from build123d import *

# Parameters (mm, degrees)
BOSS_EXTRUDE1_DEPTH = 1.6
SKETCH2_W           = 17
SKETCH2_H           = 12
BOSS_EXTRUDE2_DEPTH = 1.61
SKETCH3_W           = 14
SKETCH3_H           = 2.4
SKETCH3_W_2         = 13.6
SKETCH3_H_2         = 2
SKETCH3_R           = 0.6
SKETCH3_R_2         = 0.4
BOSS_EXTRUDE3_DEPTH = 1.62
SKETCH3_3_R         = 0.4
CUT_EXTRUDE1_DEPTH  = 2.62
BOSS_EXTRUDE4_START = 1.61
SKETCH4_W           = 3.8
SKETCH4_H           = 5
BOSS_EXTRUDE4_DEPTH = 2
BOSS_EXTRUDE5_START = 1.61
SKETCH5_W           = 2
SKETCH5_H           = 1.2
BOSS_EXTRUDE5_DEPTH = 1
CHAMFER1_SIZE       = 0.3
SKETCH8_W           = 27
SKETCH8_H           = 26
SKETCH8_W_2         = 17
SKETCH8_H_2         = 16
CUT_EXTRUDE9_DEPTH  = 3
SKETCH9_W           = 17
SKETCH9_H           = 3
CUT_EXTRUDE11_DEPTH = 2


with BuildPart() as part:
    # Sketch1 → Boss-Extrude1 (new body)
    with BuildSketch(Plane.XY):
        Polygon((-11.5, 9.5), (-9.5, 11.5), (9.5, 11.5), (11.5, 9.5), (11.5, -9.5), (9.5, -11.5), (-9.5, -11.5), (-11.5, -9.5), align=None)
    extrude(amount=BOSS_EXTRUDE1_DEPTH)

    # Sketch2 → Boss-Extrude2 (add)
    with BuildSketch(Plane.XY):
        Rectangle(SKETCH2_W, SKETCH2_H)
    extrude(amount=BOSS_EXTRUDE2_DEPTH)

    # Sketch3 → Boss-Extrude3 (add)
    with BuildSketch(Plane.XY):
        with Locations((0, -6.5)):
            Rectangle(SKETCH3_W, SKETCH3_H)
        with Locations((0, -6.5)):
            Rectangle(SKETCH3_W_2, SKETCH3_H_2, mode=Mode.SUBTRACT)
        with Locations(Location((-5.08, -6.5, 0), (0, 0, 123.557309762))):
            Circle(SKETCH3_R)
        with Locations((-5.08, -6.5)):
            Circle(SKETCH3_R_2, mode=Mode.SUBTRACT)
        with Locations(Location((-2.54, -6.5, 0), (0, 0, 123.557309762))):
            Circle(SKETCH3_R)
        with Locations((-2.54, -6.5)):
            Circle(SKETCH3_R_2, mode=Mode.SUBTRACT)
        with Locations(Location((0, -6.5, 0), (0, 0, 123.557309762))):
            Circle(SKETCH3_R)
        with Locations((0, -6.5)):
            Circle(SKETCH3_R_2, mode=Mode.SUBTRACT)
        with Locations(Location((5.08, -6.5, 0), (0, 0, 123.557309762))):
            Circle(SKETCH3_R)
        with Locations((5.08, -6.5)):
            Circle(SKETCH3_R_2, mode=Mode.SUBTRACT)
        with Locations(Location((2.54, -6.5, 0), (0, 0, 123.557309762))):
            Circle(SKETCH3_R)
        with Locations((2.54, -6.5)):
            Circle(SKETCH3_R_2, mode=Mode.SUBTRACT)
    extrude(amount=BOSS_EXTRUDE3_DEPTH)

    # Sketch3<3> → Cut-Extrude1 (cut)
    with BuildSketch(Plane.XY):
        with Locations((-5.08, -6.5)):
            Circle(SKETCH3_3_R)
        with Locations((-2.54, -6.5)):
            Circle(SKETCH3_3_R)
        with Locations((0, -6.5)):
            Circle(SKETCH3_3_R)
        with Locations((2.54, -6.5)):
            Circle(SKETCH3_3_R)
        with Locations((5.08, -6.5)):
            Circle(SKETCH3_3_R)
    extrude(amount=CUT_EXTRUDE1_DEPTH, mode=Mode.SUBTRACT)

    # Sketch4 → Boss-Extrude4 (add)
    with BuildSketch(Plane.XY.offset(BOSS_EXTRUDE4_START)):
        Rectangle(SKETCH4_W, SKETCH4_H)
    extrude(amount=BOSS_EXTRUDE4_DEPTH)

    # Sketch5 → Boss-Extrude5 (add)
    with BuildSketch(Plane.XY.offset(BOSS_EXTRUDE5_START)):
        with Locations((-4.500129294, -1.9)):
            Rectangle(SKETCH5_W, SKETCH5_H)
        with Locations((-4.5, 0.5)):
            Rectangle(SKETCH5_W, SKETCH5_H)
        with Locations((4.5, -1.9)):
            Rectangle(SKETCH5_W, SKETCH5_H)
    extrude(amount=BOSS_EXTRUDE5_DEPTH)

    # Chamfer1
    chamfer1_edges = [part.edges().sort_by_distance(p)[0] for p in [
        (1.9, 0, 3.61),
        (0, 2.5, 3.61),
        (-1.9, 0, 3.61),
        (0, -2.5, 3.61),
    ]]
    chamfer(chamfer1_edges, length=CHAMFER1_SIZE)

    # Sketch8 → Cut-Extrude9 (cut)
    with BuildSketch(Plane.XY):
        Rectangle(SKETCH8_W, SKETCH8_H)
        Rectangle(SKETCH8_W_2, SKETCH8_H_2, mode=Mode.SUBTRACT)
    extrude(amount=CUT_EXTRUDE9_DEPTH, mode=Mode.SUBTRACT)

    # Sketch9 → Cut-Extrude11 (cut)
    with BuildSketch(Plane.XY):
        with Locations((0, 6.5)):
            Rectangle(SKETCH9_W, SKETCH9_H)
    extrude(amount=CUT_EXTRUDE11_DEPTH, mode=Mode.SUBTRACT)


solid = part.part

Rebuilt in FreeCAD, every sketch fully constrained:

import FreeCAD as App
import Part
import Sketcher

V = App.Vector
Q = App.Units.Quantity


def edges_at(feature, points):
    """Names of the edges that pass closest to the given points."""
    edges = feature.Shape.Edges
    near = lambda p: min(range(len(edges)), key=lambda i: edges[i].distToShape(Part.Vertex(*p))[0])
    return sorted({f"Edge{near(p) + 1}" for p in points})


def add_polygon(sketch, points):
    """Adds a closed chain of lines whose ends are joined by coincident constraints."""
    first, n = sketch.GeometryCount, len(points)
    for a, b in zip(points, points[1:] + points[:1]):
        sketch.addGeometry(Part.LineSegment(App.Vector(*a, 0), App.Vector(*b, 0)), False)
    for i in range(n):
        sketch.addConstraint(Sketcher.Constraint("Coincident", first + i, 2, first + (i + 1) % n, 1))

doc = App.newDocument("Part")
params = doc.addObject("Spreadsheet::Sheet", "Params")
for row, (alias, value) in enumerate([
    ("sketch1_width", "19 mm"),
    ("pad1_length", "1.6 mm"),
    ("sketch2_width", "17 mm"),
    ("sketch2_height", "12 mm"),
    ("pad2_length", "1.61 mm"),
    ("sketch3_diameter", "1.2 mm"),
    ("sketch3_diameter2", "0.8 mm"),
    ("sketch3_width", "14 mm"),
    ("sketch3_height", "2 mm"),
    ("sketch3_width2", "13.6 mm"),
    ("pad3_length", "1.62 mm"),
    ("sketch4_diameter", "0.8 mm"),
    ("pocket1_length", "2.62 mm"),
    ("sketch5_height", "5 mm"),
    ("sketch5_width", "3.8 mm"),
    ("pad4_length", "2 mm"),
    ("sketch6_width", "2 mm"),
    ("sketch6_height", "1.2 mm"),
    ("pad5_length", "1 mm"),
    ("chamfer_size", "0.3 mm"),
    ("sketch7_width", "27 mm"),
    ("sketch7_width2", "17 mm"),
    ("sketch7_height", "26 mm"),
    ("sketch7_height2", "16 mm"),
    ("pocket2_length", "3 mm"),
    ("sketch8_width", "17 mm"),
    ("sketch8_height", "3 mm"),
    ("pocket3_length", "2 mm"),
], start=1):
    params.set(f"A{row}", alias)
    params.set(f"B{row}", "=" + value)
    params.setAlias(f"B{row}", alias)

body = doc.addObject("PartDesign::Body", "Body")

sketch1 = body.newObject("Sketcher::SketchObject", "Sketch")
sketch1.AttachmentSupport = (doc.getObject("XY_Plane"), [""])
sketch1.MapMode = "FlatFace"
add_polygon(sketch1, [(-9.5, 11.5), (-11.5, 9.5), (-11.5, -9.5), (-9.5, -11.5), (9.5, -11.5), (11.5, -9.5), (11.5, 9.5), (9.5, 11.5)])
sketch1.addConstraint(Sketcher.Constraint("Vertical", 1))
sketch1.addConstraint(Sketcher.Constraint("Horizontal", 3))
sketch1.addConstraint(Sketcher.Constraint("Vertical", 5))
sketch1.addConstraint(Sketcher.Constraint("Horizontal", 7))
sketch1.addConstraint(Sketcher.Constraint("Symmetric", 0, 2, 4, 2, -1, 1))
sketch1.addConstraint(Sketcher.Constraint("Symmetric", 2, 2, 6, 2, -1, 1))
sketch1.addConstraint(Sketcher.Constraint("Perpendicular", 0, 2))
sketch1.addConstraint(Sketcher.Constraint("Perpendicular", 2, 4))
sketch1.addConstraint(Sketcher.Constraint("Perpendicular", 4, 6))
sketch1.addConstraint(Sketcher.Constraint("Horizontal", 1, 2, 4, 2))
sketch1.addConstraint(Sketcher.Constraint("Vertical", 3, 2, 6, 2))
sketch1.addConstraint(Sketcher.Constraint("Equal", 7, 1))
sketch1.addConstraint(Sketcher.Constraint("DistanceX", 3, 1, 3, 2, Q("19 mm")))
sketch1.addConstraint(Sketcher.Constraint("DistanceX", 1, 2, 2, 2, Q("2 mm")))
sketch1.setExpression("Constraints[20]", "Params.sketch1_width")
pad1 = body.newObject("PartDesign::Pad", "Pad")
pad1.Profile = sketch1
pad1.setExpression("Length", "Params.pad1_length")

sketch2 = body.newObject("Sketcher::SketchObject", "Sketch001")
sketch2.AttachmentSupport = (doc.getObject("XY_Plane"), [""])
sketch2.MapMode = "FlatFace"
add_polygon(sketch2, [(-8, 6), (-8, -6), (8, -6), (8, 6)])
sketch2.addConstraint(Sketcher.Constraint("Vertical", 0))
sketch2.addConstraint(Sketcher.Constraint("Horizontal", 1))
sketch2.addConstraint(Sketcher.Constraint("Vertical", 2))
sketch2.addConstraint(Sketcher.Constraint("Horizontal", 3))
sketch2.addConstraint(Sketcher.Constraint("Symmetric", 0, 2, 2, 2, -1, 1))
sketch2.addConstraint(Sketcher.Constraint("DistanceX", 1, 1, 1, 2, Q("17 mm")))
sketch2.addConstraint(Sketcher.Constraint("DistanceY", 0, 2, 0, 1, Q("12 mm")))
sketch2.setExpression("Constraints[9]", "Params.sketch2_width")
sketch2.setExpression("Constraints[10]", "Params.sketch2_height")
pad2 = body.newObject("PartDesign::Pad", "Pad001")
pad2.Profile = sketch2
pad2.setExpression("Length", "Params.pad2_length")

sketch3 = body.newObject("Sketcher::SketchObject", "Sketch002")
sketch3.AttachmentSupport = (doc.getObject("XY_Plane"), [""])
sketch3.MapMode = "FlatFace"
add_polygon(sketch3, [(-7, -5.3), (-7, -7.7), (7, -7.7), (7, -5.3)])
add_polygon(sketch3, [(6.8, -7.5), (-6.8, -7.5), (-6.8, -5.5), (6.8, -5.5)])
sketch3.addGeometry(Part.Circle(V(-5.08, -6.5, 0), V(0, 0, 1), 0.6), False)
sketch3.addGeometry(Part.Circle(V(-5.08, -6.5, 0), V(0, 0, 1), 0.4), False)
sketch3.addGeometry(Part.Circle(V(-2.54, -6.5, 0), V(0, 0, 1), 0.6), False)
sketch3.addGeometry(Part.Circle(V(-2.54, -6.5, 0), V(0, 0, 1), 0.4), False)
sketch3.addGeometry(Part.Circle(V(0, -6.5, 0), V(0, 0, 1), 0.6), False)
sketch3.addGeometry(Part.Circle(V(0, -6.5, 0), V(0, 0, 1), 0.4), False)
sketch3.addGeometry(Part.Circle(V(5.08, -6.5, 0), V(0, 0, 1), 0.6), False)
sketch3.addGeometry(Part.Circle(V(5.08, -6.5, 0), V(0, 0, 1), 0.4), False)
sketch3.addGeometry(Part.Circle(V(2.54, -6.5, 0), V(0, 0, 1), 0.6), False)
sketch3.addGeometry(Part.Circle(V(2.54, -6.5, 0), V(0, 0, 1), 0.4), False)
sketch3.addConstraint(Sketcher.Constraint("Vertical", 0))
sketch3.addConstraint(Sketcher.Constraint("Horizontal", 1))
sketch3.addConstraint(Sketcher.Constraint("Vertical", 2))
sketch3.addConstraint(Sketcher.Constraint("Horizontal", 3))
sketch3.addConstraint(Sketcher.Constraint("Horizontal", 4))
sketch3.addConstraint(Sketcher.Constraint("Vertical", 5))
sketch3.addConstraint(Sketcher.Constraint("Horizontal", 6))
sketch3.addConstraint(Sketcher.Constraint("Vertical", 7))
sketch3.addConstraint(Sketcher.Constraint("Coincident", 9, 3, 8, 3))
sketch3.addConstraint(Sketcher.Constraint("Coincident", 11, 3, 10, 3))
sketch3.addConstraint(Sketcher.Constraint("Coincident", 13, 3, 12, 3))
sketch3.addConstraint(Sketcher.Constraint("Coincident", 15, 3, 14, 3))
sketch3.addConstraint(Sketcher.Constraint("Coincident", 17, 3, 16, 3))
sketch3.addConstraint(Sketcher.Constraint("Equal", 8, 10))
sketch3.addConstraint(Sketcher.Constraint("Equal", 9, 11))
sketch3.addConstraint(Sketcher.Constraint("Equal", 10, 12))
sketch3.addConstraint(Sketcher.Constraint("Equal", 11, 13))
sketch3.addConstraint(Sketcher.Constraint("Equal", 12, 14))
sketch3.addConstraint(Sketcher.Constraint("Equal", 13, 15))
sketch3.addConstraint(Sketcher.Constraint("Equal", 14, 16))
sketch3.addConstraint(Sketcher.Constraint("Equal", 15, 17))
sketch3.addConstraint(Sketcher.Constraint("Symmetric", 8, 3, 14, 3, -2))
sketch3.addConstraint(Sketcher.Constraint("Symmetric", 10, 3, 16, 3, -2))
sketch3.addConstraint(Sketcher.Constraint("PointOnObject", 12, 3, -2))
sketch3.addConstraint(Sketcher.Constraint("Horizontal", 9, 3, 10, 3))
sketch3.addConstraint(Sketcher.Constraint("Horizontal", 11, 3, 12, 3))
sketch3.addConstraint(Sketcher.Constraint("Diameter", 8, Q("1.2 mm")))
sketch3.addConstraint(Sketcher.Constraint("Diameter", 9, Q("0.8 mm")))
sketch3.addConstraint(Sketcher.Constraint("DistanceX", 1, 1, 1, 2, Q("14 mm")))
sketch3.addConstraint(Sketcher.Constraint("DistanceY", 5, 1, 5, 2, Q("2 mm")))
sketch3.addConstraint(Sketcher.Constraint("DistanceX", 4, 2, 4, 1, Q("13.6 mm")))
sketch3.addConstraint(Sketcher.Constraint("DistanceY", 0, 2, 0, 1, Q("2.4 mm")))
sketch3.addConstraint(Sketcher.Constraint("DistanceX", 0, 2, -1, 1, Q("7 mm")))
sketch3.addConstraint(Sketcher.Constraint("DistanceY", 4, 2, 8, 3, Q("1 mm")))
sketch3.addConstraint(Sketcher.Constraint("DistanceY", 8, 3, -1, 1, Q("6.5 mm")))
sketch3.addConstraint(Sketcher.Constraint("DistanceY", 0, 2, -1, 1, Q("7.7 mm")))
sketch3.addConstraint(Sketcher.Constraint("DistanceX", 4, 2, -1, 1, Q("6.8 mm")))
sketch3.addConstraint(Sketcher.Constraint("DistanceX", 8, 3, -1, 1, Q("5.08 mm")))
sketch3.addConstraint(Sketcher.Constraint("DistanceX", 10, 3, -1, 1, Q("2.54 mm")))
sketch3.setExpression("Constraints[34]", "Params.sketch3_diameter")
sketch3.setExpression("Constraints[35]", "Params.sketch3_diameter2")
sketch3.setExpression("Constraints[36]", "Params.sketch3_width")
sketch3.setExpression("Constraints[37]", "Params.sketch3_height")
sketch3.setExpression("Constraints[38]", "Params.sketch3_width2")
pad3 = body.newObject("PartDesign::Pad", "Pad002")
pad3.Profile = sketch3
pad3.setExpression("Length", "Params.pad3_length")

sketch4 = body.newObject("Sketcher::SketchObject", "Sketch003")
sketch4.AttachmentSupport = (doc.getObject("XY_Plane"), [""])
sketch4.MapMode = "FlatFace"
sketch4.addGeometry(Part.Circle(V(-5.08, -6.5, 0), V(0, 0, 1), 0.4), False)
sketch4.addGeometry(Part.Circle(V(-2.54, -6.5, 0), V(0, 0, 1), 0.4), False)
sketch4.addGeometry(Part.Circle(V(0, -6.5, 0), V(0, 0, 1), 0.4), False)
sketch4.addGeometry(Part.Circle(V(2.54, -6.5, 0), V(0, 0, 1), 0.4), False)
sketch4.addGeometry(Part.Circle(V(5.08, -6.5, 0), V(0, 0, 1), 0.4), False)
sketch4.addConstraint(Sketcher.Constraint("Equal", 0, 1))
sketch4.addConstraint(Sketcher.Constraint("Equal", 1, 2))
sketch4.addConstraint(Sketcher.Constraint("Equal", 2, 3))
sketch4.addConstraint(Sketcher.Constraint("Equal", 3, 4))
sketch4.addConstraint(Sketcher.Constraint("Symmetric", 1, 3, 3, 3, -2))
sketch4.addConstraint(Sketcher.Constraint("Symmetric", 0, 3, 4, 3, -2))
sketch4.addConstraint(Sketcher.Constraint("PointOnObject", 2, 3, -2))
sketch4.addConstraint(Sketcher.Constraint("Horizontal", 0, 3, 1, 3))
sketch4.addConstraint(Sketcher.Constraint("Horizontal", 1, 3, 2, 3))
sketch4.addConstraint(Sketcher.Constraint("Diameter", 0, Q("0.8 mm")))
sketch4.addConstraint(Sketcher.Constraint("DistanceY", 0, 3, -1, 1, Q("6.5 mm")))
sketch4.addConstraint(Sketcher.Constraint("DistanceX", 0, 3, -1, 1, Q("5.08 mm")))
sketch4.addConstraint(Sketcher.Constraint("DistanceX", 1, 3, -1, 1, Q("2.54 mm")))
sketch4.setExpression("Constraints[9]", "Params.sketch4_diameter")
pocket1 = body.newObject("PartDesign::Pocket", "Pocket")
pocket1.Profile = sketch4
pocket1.setExpression("Length", "Params.pocket1_length")
pocket1.Reversed = True

sketch5 = body.newObject("Sketcher::SketchObject", "Sketch004")
sketch5.AttachmentSupport = (doc.getObject("XY_Plane"), [""])
sketch5.MapMode = "FlatFace"
sketch5.AttachmentOffset = App.Placement(V(0, 0, 1.61), App.Rotation())
add_polygon(sketch5, [(-1.9, 2.5), (-1.9, -2.5), (1.9, -2.5), (1.9, 2.5)])
sketch5.addConstraint(Sketcher.Constraint("Vertical", 0))
sketch5.addConstraint(Sketcher.Constraint("Horizontal", 1))
sketch5.addConstraint(Sketcher.Constraint("Vertical", 2))
sketch5.addConstraint(Sketcher.Constraint("Horizontal", 3))
sketch5.addConstraint(Sketcher.Constraint("Symmetric", 0, 2, 2, 2, -1, 1))
sketch5.addConstraint(Sketcher.Constraint("DistanceY", 0, 2, 0, 1, Q("5 mm")))
sketch5.addConstraint(Sketcher.Constraint("DistanceX", 1, 1, 1, 2, Q("3.8 mm")))
sketch5.setExpression("Constraints[9]", "Params.sketch5_height")
sketch5.setExpression("Constraints[10]", "Params.sketch5_width")
pad4 = body.newObject("PartDesign::Pad", "Pad003")
pad4.Profile = sketch5
pad4.setExpression("Length", "Params.pad4_length")

sketch6 = body.newObject("Sketcher::SketchObject", "Sketch005")
sketch6.AttachmentSupport = (doc.getObject("XY_Plane"), [""])
sketch6.MapMode = "FlatFace"
sketch6.AttachmentOffset = App.Placement(V(0, 0, 1.61), App.Rotation())
add_polygon(sketch6, [(-5.5, -1.3), (-5.5, -2.5), (-3.5, -2.5), (-3.5, -1.3)])
add_polygon(sketch6, [(-5.5, 1.1), (-5.5, -0.1), (-3.5, -0.1), (-3.5, 1.1)])
add_polygon(sketch6, [(3.5, -1.3), (3.5, -2.5), (5.5, -2.5), (5.5, -1.3)])
sketch6.addConstraint(Sketcher.Constraint("Vertical", 0))
sketch6.addConstraint(Sketcher.Constraint("Horizontal", 1))
sketch6.addConstraint(Sketcher.Constraint("Vertical", 2))
sketch6.addConstraint(Sketcher.Constraint("Horizontal", 3))
sketch6.addConstraint(Sketcher.Constraint("Vertical", 4))
sketch6.addConstraint(Sketcher.Constraint("Horizontal", 5))
sketch6.addConstraint(Sketcher.Constraint("Vertical", 6))
sketch6.addConstraint(Sketcher.Constraint("Horizontal", 7))
sketch6.addConstraint(Sketcher.Constraint("Vertical", 8))
sketch6.addConstraint(Sketcher.Constraint("Horizontal", 9))
sketch6.addConstraint(Sketcher.Constraint("Vertical", 10))
sketch6.addConstraint(Sketcher.Constraint("Horizontal", 11))
sketch6.addConstraint(Sketcher.Constraint("Horizontal", 1, 2, 8, 2))
sketch6.addConstraint(Sketcher.Constraint("Horizontal", 3, 2, 10, 2))
sketch6.addConstraint(Sketcher.Constraint("Equal", 3, 5))
sketch6.addConstraint(Sketcher.Constraint("Equal", 7, 9))
sketch6.addConstraint(Sketcher.Constraint("Equal", 2, 4))
sketch6.addConstraint(Sketcher.Constraint("DistanceX", 1, 1, 1, 2, Q("2 mm")))
sketch6.addConstraint(Sketcher.Constraint("DistanceY", 0, 2, 0, 1, Q("1.2 mm")))
sketch6.addConstraint(Sketcher.Constraint("DistanceX", 5, 2, 8, 2, Q("7 mm")))
sketch6.addConstraint(Sketcher.Constraint("DistanceY", 0, 2, -1, 1, Q("2.5 mm")))
sketch6.addConstraint(Sketcher.Constraint("DistanceX", 4, 2, -1, 1, Q("5.5 mm")))
sketch6.addConstraint(Sketcher.Constraint("DistanceY", 4, 2, -1, 1, Q("0.1 mm")))
sketch6.addConstraint(Sketcher.Constraint("DistanceX", 0, 2, -1, 1, Q("5.500129 mm")))
sketch6.setExpression("Constraints[29]", "Params.sketch6_width")
sketch6.setExpression("Constraints[30]", "Params.sketch6_height")
pad5 = body.newObject("PartDesign::Pad", "Pad004")
pad5.Profile = sketch6
pad5.setExpression("Length", "Params.pad5_length")
doc.recompute()

chamfer = body.newObject("PartDesign::Chamfer", "Chamfer")
chamfer.Base = (pad5, edges_at(pad5, [
    (1.9, 0, 3.61),
    (0, 2.5, 3.61),
    (-1.9, 0, 3.61),
    (0, -2.5, 3.61),
]))
chamfer.setExpression("Size", "Params.chamfer_size")

sketch7 = body.newObject("Sketcher::SketchObject", "Sketch006")
sketch7.AttachmentSupport = (doc.getObject("XY_Plane"), [""])
sketch7.MapMode = "FlatFace"
add_polygon(sketch7, [(-14, 13), (-14, -13), (14, -13), (14, 13)])
add_polygon(sketch7, [(8, -8), (-8, -8), (-8, 8), (8, 8)])
sketch7.addConstraint(Sketcher.Constraint("Vertical", 0))
sketch7.addConstraint(Sketcher.Constraint("Horizontal", 1))
sketch7.addConstraint(Sketcher.Constraint("Vertical", 2))
sketch7.addConstraint(Sketcher.Constraint("Horizontal", 3))
sketch7.addConstraint(Sketcher.Constraint("Horizontal", 4))
sketch7.addConstraint(Sketcher.Constraint("Vertical", 5))
sketch7.addConstraint(Sketcher.Constraint("Horizontal", 6))
sketch7.addConstraint(Sketcher.Constraint("Vertical", 7))
sketch7.addConstraint(Sketcher.Constraint("Symmetric", 0, 2, 2, 2, -1, 1))
sketch7.addConstraint(Sketcher.Constraint("Symmetric", 4, 2, 6, 2, -1, 1))
sketch7.addConstraint(Sketcher.Constraint("DistanceX", 1, 1, 1, 2, Q("27 mm")))
sketch7.addConstraint(Sketcher.Constraint("DistanceX", 4, 2, 4, 1, Q("17 mm")))
sketch7.addConstraint(Sketcher.Constraint("DistanceY", 0, 2, 0, 1, Q("26 mm")))
sketch7.addConstraint(Sketcher.Constraint("DistanceY", 5, 1, 5, 2, Q("16 mm")))
sketch7.setExpression("Constraints[18]", "Params.sketch7_width")
sketch7.setExpression("Constraints[19]", "Params.sketch7_width2")
sketch7.setExpression("Constraints[20]", "Params.sketch7_height")
sketch7.setExpression("Constraints[21]", "Params.sketch7_height2")
pocket2 = body.newObject("PartDesign::Pocket", "Pocket001")
pocket2.Profile = sketch7
pocket2.setExpression("Length", "Params.pocket2_length")
pocket2.Reversed = True

sketch8 = body.newObject("Sketcher::SketchObject", "Sketch007")
sketch8.AttachmentSupport = (doc.getObject("XY_Plane"), [""])
sketch8.MapMode = "FlatFace"
add_polygon(sketch8, [(-8.5, 8), (-8.5, 5), (8.5, 5), (8.5, 8)])
sketch8.addConstraint(Sketcher.Constraint("Vertical", 0))
sketch8.addConstraint(Sketcher.Constraint("Horizontal", 1))
sketch8.addConstraint(Sketcher.Constraint("Vertical", 2))
sketch8.addConstraint(Sketcher.Constraint("Horizontal", 3))
sketch8.addConstraint(Sketcher.Constraint("DistanceX", 1, 1, 1, 2, Q("17 mm")))
sketch8.addConstraint(Sketcher.Constraint("DistanceY", 0, 2, 0, 1, Q("3 mm")))
sketch8.addConstraint(Sketcher.Constraint("DistanceY", -1, 1, 0, 2, Q("5 mm")))
sketch8.addConstraint(Sketcher.Constraint("DistanceX", 0, 2, -1, 1, Q("8.5 mm")))
sketch8.setExpression("Constraints[8]", "Params.sketch8_width")
sketch8.setExpression("Constraints[9]", "Params.sketch8_height")
pocket3 = body.newObject("PartDesign::Pocket", "Pocket002")
pocket3.Profile = sketch8
pocket3.setExpression("Length", "Params.pocket3_length")
pocket3.Reversed = True

doc.recompute()
